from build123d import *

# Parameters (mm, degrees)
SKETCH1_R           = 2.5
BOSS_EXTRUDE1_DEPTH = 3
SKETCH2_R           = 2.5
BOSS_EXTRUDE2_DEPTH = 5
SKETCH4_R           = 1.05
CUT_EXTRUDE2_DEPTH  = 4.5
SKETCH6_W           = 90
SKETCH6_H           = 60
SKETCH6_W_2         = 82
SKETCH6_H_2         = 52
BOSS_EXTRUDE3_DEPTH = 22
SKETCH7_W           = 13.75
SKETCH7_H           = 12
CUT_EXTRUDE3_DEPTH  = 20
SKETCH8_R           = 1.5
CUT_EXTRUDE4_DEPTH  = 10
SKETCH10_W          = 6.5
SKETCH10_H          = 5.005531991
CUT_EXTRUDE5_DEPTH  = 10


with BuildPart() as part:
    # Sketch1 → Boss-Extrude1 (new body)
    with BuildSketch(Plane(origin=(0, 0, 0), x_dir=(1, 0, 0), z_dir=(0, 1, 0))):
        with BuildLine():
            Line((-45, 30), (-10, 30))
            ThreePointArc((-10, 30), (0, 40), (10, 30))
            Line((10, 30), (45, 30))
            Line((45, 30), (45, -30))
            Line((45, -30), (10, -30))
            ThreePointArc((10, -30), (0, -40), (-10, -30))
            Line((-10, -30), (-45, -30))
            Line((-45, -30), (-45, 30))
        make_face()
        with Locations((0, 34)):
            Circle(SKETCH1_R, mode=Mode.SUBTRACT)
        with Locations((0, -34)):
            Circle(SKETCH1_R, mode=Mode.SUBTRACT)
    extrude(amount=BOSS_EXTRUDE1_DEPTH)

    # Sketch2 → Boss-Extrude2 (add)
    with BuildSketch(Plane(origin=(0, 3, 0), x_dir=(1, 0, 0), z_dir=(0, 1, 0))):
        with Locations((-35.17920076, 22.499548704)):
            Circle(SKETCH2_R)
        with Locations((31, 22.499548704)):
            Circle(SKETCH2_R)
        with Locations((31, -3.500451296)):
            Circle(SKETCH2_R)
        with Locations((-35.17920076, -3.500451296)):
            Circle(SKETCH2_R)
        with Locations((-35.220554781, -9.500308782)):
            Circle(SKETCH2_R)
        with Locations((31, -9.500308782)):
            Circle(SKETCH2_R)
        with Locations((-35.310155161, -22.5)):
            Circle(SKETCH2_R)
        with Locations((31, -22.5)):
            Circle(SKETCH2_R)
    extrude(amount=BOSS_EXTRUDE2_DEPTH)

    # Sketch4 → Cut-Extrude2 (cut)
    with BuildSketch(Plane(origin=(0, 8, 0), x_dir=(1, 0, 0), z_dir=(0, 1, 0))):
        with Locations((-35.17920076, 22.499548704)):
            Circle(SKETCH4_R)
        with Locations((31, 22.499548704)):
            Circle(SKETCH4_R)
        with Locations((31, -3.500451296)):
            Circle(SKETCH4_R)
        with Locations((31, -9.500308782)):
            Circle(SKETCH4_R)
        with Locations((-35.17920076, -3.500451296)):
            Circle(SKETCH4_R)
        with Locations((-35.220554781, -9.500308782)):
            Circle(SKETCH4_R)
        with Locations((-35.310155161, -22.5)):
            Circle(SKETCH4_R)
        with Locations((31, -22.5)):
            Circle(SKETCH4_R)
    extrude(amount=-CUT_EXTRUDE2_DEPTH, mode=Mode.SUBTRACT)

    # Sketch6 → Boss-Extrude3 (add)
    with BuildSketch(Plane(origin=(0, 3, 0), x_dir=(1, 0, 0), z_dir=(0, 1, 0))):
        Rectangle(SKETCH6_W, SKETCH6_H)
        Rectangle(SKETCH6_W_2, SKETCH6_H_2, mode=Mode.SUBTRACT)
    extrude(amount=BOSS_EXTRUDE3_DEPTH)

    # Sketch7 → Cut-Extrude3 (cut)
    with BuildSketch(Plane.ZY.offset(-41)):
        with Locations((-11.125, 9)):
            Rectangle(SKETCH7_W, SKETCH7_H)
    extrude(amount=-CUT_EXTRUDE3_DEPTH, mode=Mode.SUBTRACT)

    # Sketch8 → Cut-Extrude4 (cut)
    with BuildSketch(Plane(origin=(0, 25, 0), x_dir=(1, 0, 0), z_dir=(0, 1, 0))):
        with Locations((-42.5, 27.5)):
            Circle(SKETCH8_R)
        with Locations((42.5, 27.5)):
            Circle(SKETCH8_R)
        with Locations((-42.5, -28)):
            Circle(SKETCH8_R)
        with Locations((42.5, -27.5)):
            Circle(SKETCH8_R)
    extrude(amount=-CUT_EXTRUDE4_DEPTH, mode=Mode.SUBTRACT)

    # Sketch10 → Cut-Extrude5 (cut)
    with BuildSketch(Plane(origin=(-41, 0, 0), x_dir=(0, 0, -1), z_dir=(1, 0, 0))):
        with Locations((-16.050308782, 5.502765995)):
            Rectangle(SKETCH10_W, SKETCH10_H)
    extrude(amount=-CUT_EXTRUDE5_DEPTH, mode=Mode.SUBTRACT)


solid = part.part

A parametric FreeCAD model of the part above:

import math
import FreeCAD as App
import Part
import Sketcher


def add_polygon(sketch, points):
    """Adds a closed chain of lines whose ends are joined by coincident constraints."""
    first, n = sketch.GeometryCount, len(points)
    for a, b in zip(points, points[1:] + points[:1]):
        sketch.addGeometry(Part.LineSegment(App.Vector(*a, 0), App.Vector(*b, 0)), False)
    for i in range(n):
        sketch.addConstraint(Sketcher.Constraint("Coincident", first + i, 2, first + (i + 1) % n, 1))

doc = App.newDocument("Part")
body = doc.addObject("PartDesign::Body", "Body")

# Sketch on XZ plane
sketch1 = body.newObject("Sketcher::SketchObject", "Sketch")
sketch1.AttachmentSupport = (doc.getObject("XZ_Plane"), [""])
sketch1.MapMode = "FlatFace"
sketch1.addGeometry(Part.LineSegment(App.Vector(-10, -30, 0), App.Vector(-45, -30, 0)), False)
sketch1.addGeometry(Part.LineSegment(App.Vector(-45, -30, 0), App.Vector(-45, 30, 0)), False)
sketch1.addGeometry(Part.LineSegment(App.Vector(-45, 30, 0), App.Vector(-10, 30, 0)), False)
sketch1.addGeometry(Part.ArcOfCircle(Part.Circle(App.Vector(0, 30, 0), App.Vector(0, 0, 1), 10), math.radians(0), math.radians(180)), False)
sketch1.addGeometry(Part.LineSegment(App.Vector(10, 30, 0), App.Vector(45, 30, 0)), False)
sketch1.addGeometry(Part.LineSegment(App.Vector(45, 30, 0), App.Vector(45, -30, 0)), False)
sketch1.addGeometry(Part.LineSegment(App.Vector(45, -30, 0), App.Vector(10, -30, 0)), False)
sketch1.addGeometry(Part.ArcOfCircle(Part.Circle(App.Vector(0, -30, 0), App.Vector(0, 0, 1), 10), math.radians(180), math.radians(360)), False)
sketch1.addGeometry(Part.Circle(App.Vector(0, 34, 0), App.Vector(0, 0, 1), 2.5), False)
sketch1.addGeometry(Part.Circle(App.Vector(0, -34, 0), App.Vector(0, 0, 1), 2.5), False)
sketch1.addConstraint(Sketcher.Constraint("Coincident", 0, 2, 1, 1))
sketch1.addConstraint(Sketcher.Constraint("Coincident", 1, 2, 2, 1))
sketch1.addConstraint(Sketcher.Constraint("Coincident", 2, 2, 3, 2))
sketch1.addConstraint(Sketcher.Constraint("Coincident", 3, 1, 4, 1))
sketch1.addConstraint(Sketcher.Constraint("Coincident", 4, 2, 5, 1))
sketch1.addConstraint(Sketcher.Constraint("Coincident", 5, 2, 6, 1))
sketch1.addConstraint(Sketcher.Constraint("Coincident", 6, 2, 7, 2))
sketch1.addConstraint(Sketcher.Constraint("Coincident", 7, 1, 0, 1))
sketch1.addConstraint(Sketcher.Constraint("Horizontal", 0))
sketch1.addConstraint(Sketcher.Constraint("Vertical", 1))
sketch1.addConstraint(Sketcher.Constraint("Horizontal", 2))
sketch1.addConstraint(Sketcher.Constraint("Horizontal", 4))
sketch1.addConstraint(Sketcher.Constraint("Vertical", 5))
sketch1.addConstraint(Sketcher.Constraint("Horizontal", 6))
sketch1.addConstraint(Sketcher.Constraint("Equal", 3, 7))
sketch1.addConstraint(Sketcher.Constraint("Equal", 8, 9))
sketch1.addConstraint(Sketcher.Constraint("Symmetric", 3, 3, 7, 3, -1, 1))
sketch1.addConstraint(Sketcher.Constraint("Symmetric", 8, 3, 9, 3, -1, 1))
sketch1.addConstraint(Sketcher.Constraint("Symmetric", 0, 2, 4, 2, -1, 1))
sketch1.addConstraint(Sketcher.Constraint("Symmetric", 2, 2, 3, 1, -2))
sketch1.addConstraint(Sketcher.Constraint("PointOnObject", 8, 3, -2))
sketch1.addConstraint(Sketcher.Constraint("Horizontal", 7, 3, 0, 2))
sketch1.addConstraint(Sketcher.Constraint("Horizontal", 0, 2, 5, 2))
sketch1.addConstraint(Sketcher.Constraint("Diameter", 8, 5.0))
sketch1.addConstraint(Sketcher.Constraint("Radius", 3, 10.0))
sketch1.addConstraint(Sketcher.Constraint("DistanceX", 0, 2, 0, 1, 35.0))
sketch1.addConstraint(Sketcher.Constraint("DistanceY", 1, 1, 1, 2, 60.0))
sketch1.addConstraint(Sketcher.Constraint("DistanceY", -1, 1, 8, 3, 34.0))
pad1 = body.newObject("PartDesign::Pad", "Pad")
pad1.Profile = sketch1
pad1.Length = 3
pad1.Reversed = True

# Sketch on XZ plane
sketch2 = body.newObject("Sketcher::SketchObject", "Sketch001")
sketch2.AttachmentSupport = (doc.getObject("XZ_Plane"), [""])
sketch2.MapMode = "FlatFace"
sketch2.AttachmentOffset = App.Placement(App.Vector(0, 0, -3), App.Rotation())
sketch2.addGeometry(Part.Circle(App.Vector(-35.2, -22.5, 0), App.Vector(0, 0, 1), 2.5), False)
sketch2.addGeometry(Part.Circle(App.Vector(31, -22.5, 0), App.Vector(0, 0, 1), 2.5), False)
sketch2.addGeometry(Part.Circle(App.Vector(31, 3.5, 0), App.Vector(0, 0, 1), 2.5), False)
sketch2.addGeometry(Part.Circle(App.Vector(-35.2, 3.5, 0), App.Vector(0, 0, 1), 2.5), False)
sketch2.addGeometry(Part.Circle(App.Vector(-35.2, 9.5, 0), App.Vector(0, 0, 1), 2.5), False)
sketch2.addGeometry(Part.Circle(App.Vector(31, 9.5, 0), App.Vector(0, 0, 1), 2.5), False)
sketch2.addGeometry(Part.Circle(App.Vector(-35.3, 22.5, 0), App.Vector(0, 0, 1), 2.5), False)
sketch2.addGeometry(Part.Circle(App.Vector(31, 22.5, 0), App.Vector(0, 0, 1), 2.5), False)
sketch2.addConstraint(Sketcher.Constraint("Equal", 0, 1))
sketch2.addConstraint(Sketcher.Constraint("Equal", 1, 2))
sketch2.addConstraint(Sketcher.Constraint("Equal", 2, 3))
sketch2.addConstraint(Sketcher.Constraint("Equal", 3, 4))
sketch2.addConstraint(Sketcher.Constraint("Equal", 4, 5))
sketch2.addConstraint(Sketcher.Constraint("Equal", 5, 6))
sketch2.addConstraint(Sketcher.Constraint("Equal", 6, 7))
sketch2.addConstraint(Sketcher.Constraint("Horizontal", 0, 3, 1, 3))
sketch2.addConstraint(Sketcher.Constraint("Horizontal", 2, 3, 3, 3))
sketch2.addConstraint(Sketcher.Constraint("Horizontal", 4, 3, 5, 3))
sketch2.addConstraint(Sketcher.Constraint("Horizontal", 6, 3, 7, 3))
sketch2.addConstraint(Sketcher.Constraint("Vertical", 1, 3, 2, 3))
sketch2.addConstraint(Sketcher.Constraint("Vertical", 0, 3, 3, 3))
sketch2.addConstraint(Sketcher.Constraint("Vertical", 2, 3, 5, 3))
sketch2.addConstraint(Sketcher.Constraint("Vertical", 5, 3, 7, 3))
sketch2.addConstraint(Sketcher.Constraint("Diameter", 0, 5.0))
sketch2.addConstraint(Sketcher.Constraint("DistanceX", -1, 1, 1, 3, 31.0))
sketch2.addConstraint(Sketcher.Constraint("DistanceY", 1, 3, 2, 3, 26.0))
sketch2.addConstraint(Sketcher.Constraint("DistanceY", -1, 1, 6, 3, 22.5))
sketch2.addConstraint(Sketcher.Constraint("DistanceX", 0, 3, -1, 1, 35.179201))
sketch2.addConstraint(Sketcher.Constraint("DistanceX", 6, 3, 4, 3, 0.0896))
sketch2.addConstraint(Sketcher.Constraint("DistanceY", 0, 3, -1, 1, 22.499549))
sketch2.addConstraint(Sketcher.Constraint("DistanceY", -1, 1, 4, 3, 9.500309))
sketch2.addConstraint(Sketcher.Constraint("DistanceX", 4, 3, -1, 1, 35.220555))
pad2 = body.newObject("PartDesign::Pad", "Pad001")
pad2.Profile = sketch2
pad2.Length = 5
pad2.Reversed = True

# Sketch on XZ plane
sketch3 = body.newObject("Sketcher::SketchObject", "Sketch002")
sketch3.AttachmentSupport = (doc.getObject("XZ_Plane"), [""])
sketch3.MapMode = "FlatFace"
sketch3.AttachmentOffset = App.Placement(App.Vector(0, 0, -8), App.Rotation())
sketch3.addGeometry(Part.Circle(App.Vector(-35.2, -22.5, 0), App.Vector(0, 0, 1), 1.1), False)
sketch3.addGeometry(Part.Circle(App.Vector(31, -22.5, 0), App.Vector(0, 0, 1), 1.1), False)
sketch3.addGeometry(Part.Circle(App.Vector(31, 3.5, 0), App.Vector(0, 0, 1), 1.1), False)
sketch3.addGeometry(Part.Circle(App.Vector(31, 9.5, 0), App.Vector(0, 0, 1), 1.1), False)
sketch3.addGeometry(Part.Circle(App.Vector(-35.2, 3.5, 0), App.Vector(0, 0, 1), 1.1), False)
sketch3.addGeometry(Part.Circle(App.Vector(-35.2, 9.5, 0), App.Vector(0, 0, 1), 1.1), False)
sketch3.addGeometry(Part.Circle(App.Vector(-35.3, 22.5, 0), App.Vector(0, 0, 1), 1.1), False)
sketch3.addGeometry(Part.Circle(App.Vector(31, 22.5, 0), App.Vector(0, 0, 1), 1.1), False)
sketch3.addConstraint(Sketcher.Constraint("Equal", 0, 1))
sketch3.addConstraint(Sketcher.Constraint("Equal", 1, 2))
sketch3.addConstraint(Sketcher.Constraint("Equal", 2, 3))
sketch3.addConstraint(Sketcher.Constraint("Equal", 3, 4))
sketch3.addConstraint(Sketcher.Constraint("Equal", 4, 5))
sketch3.addConstraint(Sketcher.Constraint("Equal", 5, 6))
sketch3.addConstraint(Sketcher.Constraint("Equal", 6, 7))
sketch3.addConstraint(Sketcher.Constraint("Horizontal", 0, 3, 1, 3))
sketch3.addConstraint(Sketcher.Constraint("Horizontal", 2, 3, 4, 3))
sketch3.addConstraint(Sketcher.Constraint("Horizontal", 3, 3, 5, 3))
sketch3.addConstraint(Sketcher.Constraint("Horizontal", 6, 3, 7, 3))
sketch3.addConstraint(Sketcher.Constraint("Vertical", 1, 3, 2, 3))
sketch3.addConstraint(Sketcher.Constraint("Vertical", 2, 3, 3, 3))
sketch3.addConstraint(Sketcher.Constraint("Vertical", 0, 3, 4, 3))
sketch3.addConstraint(Sketcher.Constraint("Vertical", 3, 3, 7, 3))
sketch3.addConstraint(Sketcher.Constraint("Diameter", 0, 2.1))
sketch3.addConstraint(Sketcher.Constraint("DistanceX", -1, 1, 1, 3, 31.0))
sketch3.addConstraint(Sketcher.Constraint("DistanceY", 1, 3, 2, 3, 26.0))
sketch3.addConstraint(Sketcher.Constraint("DistanceY", -1, 1, 6, 3, 22.5))
sketch3.addConstraint(Sketcher.Constraint("DistanceX", 0, 3, -1, 1, 35.179201))
sketch3.addConstraint(Sketcher.Constraint("DistanceX", 6, 3, 5, 3, 0.0896))
sketch3.addConstraint(Sketcher.Constraint("DistanceY", 0, 3, -1, 1, 22.499549))
sketch3.addConstraint(Sketcher.Constraint("DistanceY", -1, 1, 3, 3, 9.500309))
sketch3.addConstraint(Sketcher.Constraint("DistanceX", 5, 3, -1, 1, 35.220555))
pocket1 = body.newObject("PartDesign::Pocket", "Pocket")
pocket1.Profile = sketch3
pocket1.Length = 4.5
pocket1.Reversed = True

# Sketch on XZ plane
sketch4 = body.newObject("Sketcher::SketchObject", "Sketch003")
sketch4.AttachmentSupport = (doc.getObject("XZ_Plane"), [""])
sketch4.MapMode = "FlatFace"
sketch4.AttachmentOffset = App.Placement(App.Vector(0, 0, -3), App.Rotation())
add_polygon(sketch4, [(-45, -30), (-45, 30), (45, 30), (45, -30)])  # lines 0-3
add_polygon(sketch4, [(41, 26), (-41, 26), (-41, -26), (41, -26)])  # lines 4-7
sketch4.addConstraint(Sketcher.Constraint("Vertical", 0))
sketch4.addConstraint(Sketcher.Constraint("Horizontal", 1))
sketch4.addConstraint(Sketcher.Constraint("Vertical", 2))
sketch4.addConstraint(Sketcher.Constraint("Horizontal", 3))
sketch4.addConstraint(Sketcher.Constraint("Horizontal", 4))
sketch4.addConstraint(Sketcher.Constraint("Vertical", 5))
sketch4.addConstraint(Sketcher.Constraint("Horizontal", 6))
sketch4.addConstraint(Sketcher.Constraint("Vertical", 7))
sketch4.addConstraint(Sketcher.Constraint("Symmetric", 0, 2, 2, 2, -1, 1))
sketch4.addConstraint(Sketcher.Constraint("Symmetric", 4, 2, 6, 2, -1, 1))
sketch4.addConstraint(Sketcher.Constraint("DistanceX", 1, 1, 1, 2, 90.0))
sketch4.addConstraint(Sketcher.Constraint("DistanceX", 4, 2, 4, 1, 82.0))
sketch4.addConstraint(Sketcher.Constraint("DistanceY", 0, 1, 0, 2, 60.0))
sketch4.addConstraint(Sketcher.Constraint("DistanceY", 5, 2, 5, 1, 52.0))
pad3 = body.newObject("PartDesign::Pad", "Pad002")
pad3.Profile = sketch4
pad3.Length = 22
pad3.Reversed = True

# Sketch on YZ plane
sketch5 = body.newObject("Sketcher::SketchObject", "Sketch004")
sketch5.AttachmentSupport = (doc.getObject("YZ_Plane"), [""])
sketch5.MapMode = "FlatFace"
sketch5.AttachmentOffset = App.Placement(App.Vector(0, 0, 41), App.Rotation())
add_polygon(sketch5, [(15, -18), (3, -18), (3, -4), (15, -4)])  # lines 0-3
sketch5.addConstraint(Sketcher.Constraint("Horizontal", 0))
sketch5.addConstraint(Sketcher.Constraint("Vertical", 1))
sketch5.addConstraint(Sketcher.Constraint("Horizontal", 2))
sketch5.addConstraint(Sketcher.Constraint("Vertical", 3))
sketch5.addConstraint(Sketcher.Constraint("DistanceX", 0, 2, 0, 1, 12.0))
sketch5.addConstraint(Sketcher.Constraint("DistanceX", -1, 1, 0, 2, 3.0))
sketch5.addConstraint(Sketcher.Constraint("DistanceY", 0, 2, -1, 1, 18.0))
sketch5.addConstraint(Sketcher.Constraint("DistanceY", 1, 1, 1, 2, 13.75))
pocket2 = body.newObject("PartDesign::Pocket", "Pocket001")
pocket2.Profile = sketch5
pocket2.Length = 20
pocket2.Reversed = True

# Sketch on XZ plane
sketch6 = body.newObject("Sketcher::SketchObject", "Sketch005")
sketch6.AttachmentSupport = (doc.getObject("XZ_Plane"), [""])
sketch6.MapMode = "FlatFace"
sketch6.AttachmentOffset = App.Placement(App.Vector(0, 0, -25), App.Rotation())
sketch6.addGeometry(Part.Circle(App.Vector(-42.5, -27.5, 0), App.Vector(0, 0, 1), 1.5), False)
sketch6.addGeometry(Part.Circle(App.Vector(42.5, -27.5, 0), App.Vector(0, 0, 1), 1.5), False)
sketch6.addGeometry(Part.Circle(App.Vector(-42.5, 28, 0), App.Vector(0, 0, 1), 1.5), False)
sketch6.addGeometry(Part.Circle(App.Vector(42.5, 27.5, 0), App.Vector(0, 0, 1), 1.5), False)
sketch6.addConstraint(Sketcher.Constraint("Equal", 0, 1))
sketch6.addConstraint(Sketcher.Constraint("Equal", 1, 2))
sketch6.addConstraint(Sketcher.Constraint("Equal", 2, 3))
sketch6.addConstraint(Sketcher.Constraint("Symmetric", 0, 3, 3, 3, -1, 1))
sketch6.addConstraint(Sketcher.Constraint("Symmetric", 0, 3, 1, 3, -2))
sketch6.addConstraint(Sketcher.Constraint("Vertical", 0, 3, 2, 3))
sketch6.addConstraint(Sketcher.Constraint("Diameter", 0, 3.0))
sketch6.addConstraint(Sketcher.Constraint("DistanceY", -1, 1, 2, 3, 28.0))
sketch6.addConstraint(Sketcher.Constraint("DistanceX", 0, 3, 1, 3, 85.0))
sketch6.addConstraint(Sketcher.Constraint("DistanceY", 1, 3, 3, 3, 55.0))
pocket3 = body.newObject("PartDesign::Pocket", "Pocket002")
pocket3.Profile = sketch6
pocket3.Length = 10
pocket3.Reversed = True

# Sketch on YZ plane
sketch7 = body.newObject("Sketcher::SketchObject", "Sketch006")
sketch7.AttachmentSupport = (doc.getObject("YZ_Plane"), [""])
sketch7.MapMode = "FlatFace"
sketch7.AttachmentOffset = App.Placement(App.Vector(0, 0, -41), App.Rotation())
add_polygon(sketch7, [(8, 19), (3, 19), (3, 13), (8, 13)])  # lines 0-3
sketch7.addConstraint(Sketcher.Constraint("Horizontal", 0))
sketch7.addConstraint(Sketcher.Constraint("Vertical", 1))
sketch7.addConstraint(Sketcher.Constraint("Horizontal", 2))
sketch7.addConstraint(Sketcher.Constraint("Vertical", 3))
sketch7.addConstraint(Sketcher.Constraint("DistanceY", 1, 2, 1, 1, 6.5))
sketch7.addConstraint(Sketcher.Constraint("DistanceX", -1, 1, 0, 2, 3.0))
sketch7.addConstraint(Sketcher.Constraint("DistanceX", 0, 2, 0, 1, 5.005532))
sketch7.addConstraint(Sketcher.Constraint("DistanceY", -1, 1, 0, 2, 19.300309))
pocket4 = body.newObject("PartDesign::Pocket", "Pocket003")
pocket4.Profile = sketch7
pocket4.Length = 10

doc.recompute()
